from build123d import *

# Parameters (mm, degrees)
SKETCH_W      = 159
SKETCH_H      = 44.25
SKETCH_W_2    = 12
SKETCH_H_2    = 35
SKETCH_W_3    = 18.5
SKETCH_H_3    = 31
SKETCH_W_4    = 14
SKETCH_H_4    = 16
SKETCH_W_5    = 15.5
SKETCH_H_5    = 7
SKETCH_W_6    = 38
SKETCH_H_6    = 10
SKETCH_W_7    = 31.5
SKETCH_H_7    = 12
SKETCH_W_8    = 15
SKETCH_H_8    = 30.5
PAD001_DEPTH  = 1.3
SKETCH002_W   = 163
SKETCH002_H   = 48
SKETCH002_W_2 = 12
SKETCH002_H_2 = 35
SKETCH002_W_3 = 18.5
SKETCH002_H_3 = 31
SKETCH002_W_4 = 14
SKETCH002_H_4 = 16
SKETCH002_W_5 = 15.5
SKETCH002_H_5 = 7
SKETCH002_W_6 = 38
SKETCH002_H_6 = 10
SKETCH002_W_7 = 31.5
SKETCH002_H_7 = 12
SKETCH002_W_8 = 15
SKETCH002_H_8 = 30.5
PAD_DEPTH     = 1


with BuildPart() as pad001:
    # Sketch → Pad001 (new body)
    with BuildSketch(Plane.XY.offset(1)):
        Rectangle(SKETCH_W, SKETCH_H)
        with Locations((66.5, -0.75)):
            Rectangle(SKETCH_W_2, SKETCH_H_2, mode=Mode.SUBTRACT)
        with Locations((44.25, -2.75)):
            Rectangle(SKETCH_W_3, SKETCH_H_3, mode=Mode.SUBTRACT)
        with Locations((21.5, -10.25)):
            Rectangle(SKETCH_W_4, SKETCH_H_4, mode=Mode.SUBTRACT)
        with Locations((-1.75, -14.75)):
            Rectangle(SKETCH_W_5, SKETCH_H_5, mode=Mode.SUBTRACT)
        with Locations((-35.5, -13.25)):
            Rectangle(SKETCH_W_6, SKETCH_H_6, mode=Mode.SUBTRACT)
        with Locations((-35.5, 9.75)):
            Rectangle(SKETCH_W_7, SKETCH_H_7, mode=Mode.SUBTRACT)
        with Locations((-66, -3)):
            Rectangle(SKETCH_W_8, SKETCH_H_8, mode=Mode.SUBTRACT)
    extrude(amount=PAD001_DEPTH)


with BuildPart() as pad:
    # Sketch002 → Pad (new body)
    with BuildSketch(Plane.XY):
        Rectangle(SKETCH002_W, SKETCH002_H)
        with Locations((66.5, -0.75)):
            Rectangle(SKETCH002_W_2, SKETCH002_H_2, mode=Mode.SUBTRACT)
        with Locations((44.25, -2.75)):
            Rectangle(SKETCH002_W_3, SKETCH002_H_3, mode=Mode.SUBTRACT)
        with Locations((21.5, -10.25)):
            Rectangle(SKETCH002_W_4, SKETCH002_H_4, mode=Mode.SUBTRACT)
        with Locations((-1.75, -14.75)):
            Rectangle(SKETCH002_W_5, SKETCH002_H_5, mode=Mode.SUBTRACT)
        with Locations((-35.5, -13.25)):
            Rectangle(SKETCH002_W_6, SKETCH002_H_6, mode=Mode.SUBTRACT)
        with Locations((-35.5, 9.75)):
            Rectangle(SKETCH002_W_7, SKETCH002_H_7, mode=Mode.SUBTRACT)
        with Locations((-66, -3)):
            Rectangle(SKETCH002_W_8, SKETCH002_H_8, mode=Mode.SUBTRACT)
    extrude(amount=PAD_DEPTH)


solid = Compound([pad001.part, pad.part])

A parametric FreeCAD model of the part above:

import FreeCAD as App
import Part
import Sketcher

V = App.Vector

doc = App.newDocument("Part")
body = doc.addObject("PartDesign::Body", "Body")

# Sketch on XY plane
sketch1 = body.newObject("Sketcher::SketchObject", "Sketch")
sketch1.AttachmentSupport = (doc.getObject("XY_Plane"), [""])
sketch1.MapMode = "FlatFace"
sketch1.AttachmentOffset = App.Placement(V(0, 0, 1), App.Rotation())
sketch1.addGeometry([
    Part.LineSegment(V(-79.5, 22.125, 0), V(-79.5, -22.125, 0)),  # 0
    Part.LineSegment(V(-79.5, -22.125, 0), V(79.5, -22.125, 0)),  # 1
    Part.LineSegment(V(79.5, -22.125, 0), V(79.5, 22.125, 0)),  # 2
    Part.LineSegment(V(79.5, 22.125, 0), V(-79.5, 22.125, 0)),  # 3
    Part.LineSegment(V(6, -18.25, 0), V(-9.5, -18.25, 0)),  # 4
    Part.LineSegment(V(-9.5, -18.25, 0), V(-9.5, -11.25, 0)),  # 5
    Part.LineSegment(V(-9.5, -11.25, 0), V(6, -11.25, 0)),  # 6
    Part.LineSegment(V(6, -11.25, 0), V(6, -18.25, 0)),  # 7
    Part.LineSegment(V(-16.5, -18.25, 0), V(-54.5, -18.25, 0)),  # 8
    Part.LineSegment(V(-54.5, -18.25, 0), V(-54.5, -8.25, 0)),  # 9
    Part.LineSegment(V(-54.5, -8.25, 0), V(-16.5, -8.25, 0)),  # 10
    Part.LineSegment(V(-16.5, -8.25, 0), V(-16.5, -18.25, 0)),  # 11
    Part.LineSegment(V(-58.5, -18.25, 0), V(-73.5, -18.25, 0)),  # 12
    Part.LineSegment(V(-73.5, -18.25, 0), V(-73.5, 12.25, 0)),  # 13
    Part.LineSegment(V(-73.5, 12.25, 0), V(-58.5, 12.25, 0)),  # 14
    Part.LineSegment(V(-58.5, 12.25, 0), V(-58.5, -18.25, 0)),  # 15
    Part.LineSegment(V(28.5, -18.25, 0), V(14.5, -18.25, 0)),  # 16
    Part.LineSegment(V(14.5, -18.25, 0), V(14.5, -2.25, 0)),  # 17
    Part.LineSegment(V(14.5, -2.25, 0), V(28.5, -2.25, 0)),  # 18
    Part.LineSegment(V(28.5, -2.25, 0), V(28.5, -18.25, 0)),  # 19
    Part.LineSegment(V(53.5, -18.25, 0), V(35, -18.25, 0)),  # 20
    Part.LineSegment(V(35, -18.25, 0), V(35, 12.75, 0)),  # 21
    Part.LineSegment(V(35, 12.75, 0), V(53.5, 12.75, 0)),  # 22
    Part.LineSegment(V(53.5, 12.75, 0), V(53.5, -18.25, 0)),  # 23
    Part.LineSegment(V(-19.75, 3.75, 0), V(-51.25, 3.75, 0)),  # 24
    Part.LineSegment(V(-51.25, 3.75, 0), V(-51.25, 15.75, 0)),  # 25
    Part.LineSegment(V(-51.25, 15.75, 0), V(-19.75, 15.75, 0)),  # 26
    Part.LineSegment(V(-19.75, 15.75, 0), V(-19.75, 3.75, 0)),  # 27
    Part.LineSegment(V(72.5, -18.25, 0), V(60.5, -18.25, 0)),  # 28
    Part.LineSegment(V(60.5, -18.25, 0), V(60.5, 16.75, 0)),  # 29
    Part.LineSegment(V(60.5, 16.75, 0), V(72.5, 16.75, 0)),  # 30
    Part.LineSegment(V(72.5, 16.75, 0), V(72.5, -18.25, 0)),  # 31
], False)
sketch1.addConstraint([
    Sketcher.Constraint("Coincident", 0, 2, 1, 1),
    Sketcher.Constraint("Coincident", 1, 2, 2, 1),
    Sketcher.Constraint("Coincident", 2, 2, 3, 1),
    Sketcher.Constraint("Coincident", 3, 2, 0, 1),
    Sketcher.Constraint("Coincident", 4, 2, 5, 1),
    Sketcher.Constraint("Coincident", 5, 2, 6, 1),
    Sketcher.Constraint("Coincident", 6, 2, 7, 1),
    Sketcher.Constraint("Coincident", 7, 2, 4, 1),
    Sketcher.Constraint("Coincident", 8, 2, 9, 1),
    Sketcher.Constraint("Coincident", 9, 2, 10, 1),
    Sketcher.Constraint("Coincident", 10, 2, 11, 1),
    Sketcher.Constraint("Coincident", 11, 2, 8, 1),
    Sketcher.Constraint("Coincident", 12, 2, 13, 1),
    Sketcher.Constraint("Coincident", 13, 2, 14, 1),
    Sketcher.Constraint("Coincident", 14, 2, 15, 1),
    Sketcher.Constraint("Coincident", 15, 2, 12, 1),
    Sketcher.Constraint("Coincident", 16, 2, 17, 1),
    Sketcher.Constraint("Coincident", 17, 2, 18, 1),
    Sketcher.Constraint("Coincident", 18, 2, 19, 1),
    Sketcher.Constraint("Coincident", 19, 2, 16, 1),
    Sketcher.Constraint("Coincident", 20, 2, 21, 1),
    Sketcher.Constraint("Coincident", 21, 2, 22, 1),
    Sketcher.Constraint("Coincident", 22, 2, 23, 1),
    Sketcher.Constraint("Coincident", 23, 2, 20, 1),
    Sketcher.Constraint("Coincident", 24, 2, 25, 1),
    Sketcher.Constraint("Coincident", 25, 2, 26, 1),
    Sketcher.Constraint("Coincident", 26, 2, 27, 1),
    Sketcher.Constraint("Coincident", 27, 2, 24, 1),
    Sketcher.Constraint("Coincident", 28, 2, 29, 1),
    Sketcher.Constraint("Coincident", 29, 2, 30, 1),
    Sketcher.Constraint("Coincident", 30, 2, 31, 1),
    Sketcher.Constraint("Coincident", 31, 2, 28, 1),
    Sketcher.Constraint("Vertical", 0),
    Sketcher.Constraint("Horizontal", 1),
    Sketcher.Constraint("Vertical", 2),
    Sketcher.Constraint("Horizontal", 3),
    Sketcher.Constraint("Horizontal", 4),
    Sketcher.Constraint("Vertical", 5),
    Sketcher.Constraint("Horizontal", 6),
    Sketcher.Constraint("Vertical", 7),
    Sketcher.Constraint("Horizontal", 8),
    Sketcher.Constraint("Vertical", 9),
    Sketcher.Constraint("Horizontal", 10),
    Sketcher.Constraint("Vertical", 11),
    Sketcher.Constraint("Horizontal", 12),
    Sketcher.Constraint("Vertical", 13),
    Sketcher.Constraint("Horizontal", 14),
    Sketcher.Constraint("Vertical", 15),
    Sketcher.Constraint("Horizontal", 16),
    Sketcher.Constraint("Vertical", 17),
    Sketcher.Constraint("Horizontal", 18),
    Sketcher.Constraint("Vertical", 19),
    Sketcher.Constraint("Horizontal", 20),
    Sketcher.Constraint("Vertical", 21),
    Sketcher.Constraint("Horizontal", 22),
    Sketcher.Constraint("Vertical", 23),
    Sketcher.Constraint("Horizontal", 24),
    Sketcher.Constraint("Vertical", 25),
    Sketcher.Constraint("Horizontal", 26),
    Sketcher.Constraint("Vertical", 27),
    Sketcher.Constraint("Horizontal", 28),
    Sketcher.Constraint("Vertical", 29),
    Sketcher.Constraint("Horizontal", 30),
    Sketcher.Constraint("Vertical", 31),
    Sketcher.Constraint("Symmetric", 0, 2, 2, 2, -1, 1),
    Sketcher.Constraint("Horizontal", 7, 2, 8, 2),
    Sketcher.Constraint("Horizontal", 11, 2, 12, 2),
    Sketcher.Constraint("Horizontal", 15, 2, 16, 2),
    Sketcher.Constraint("Horizontal", 19, 2, 20, 2),
    Sketcher.Constraint("Horizontal", 23, 2, 28, 2),
    Sketcher.Constraint("Equal", 30, 25),
    Sketcher.Constraint("DistanceX", 1, 1, 1, 2, 159.0),
    Sketcher.Constraint("DistanceX", 8, 2, 8, 1, 38.0),
    Sketcher.Constraint("DistanceX", 12, 2, 12, 1, 15.0),
    Sketcher.Constraint("DistanceX", 16, 2, 16, 1, 14.0),
    Sketcher.Constraint("DistanceX", 28, 2, 28, 1, 12.0),
    Sketcher.Constraint("DistanceY", 5, 1, 5, 2, 7.0),
    Sketcher.Constraint("DistanceY", 9, 1, 9, 2, 10.0),
    Sketcher.Constraint("DistanceY", 17, 1, 17, 2, 16.0),
    Sketcher.Constraint("DistanceY", 21, 1, 21, 2, 31.0),
    Sketcher.Constraint("DistanceY", 29, 1, 29, 2, 35.0),
    Sketcher.Constraint("DistanceX", 4, 2, 4, 1, 15.5),
    Sketcher.Constraint("DistanceX", 20, 2, 20, 1, 18.5),
    Sketcher.Constraint("DistanceX", 24, 2, 24, 1, 31.5),
    Sketcher.Constraint("DistanceY", 13, 1, 13, 2, 30.5),
    Sketcher.Constraint("DistanceX", -1, 1, 6, 2, 6.0),
    Sketcher.Constraint("DistanceX", -1, 1, 20, 2, 35.0),
    Sketcher.Constraint("DistanceX", 0, 2, 8, 2, 25.0),
    Sketcher.Constraint("DistanceX", 0, 2, 12, 2, 6.0),
    Sketcher.Constraint("DistanceX", 4, 2, 16, 2, 24.0),
    Sketcher.Constraint("DistanceY", 9, 2, 24, 2, 12.0),
    Sketcher.Constraint("DistanceX", 23, 2, 28, 2, 7.0),
    Sketcher.Constraint("DistanceY", 0, 2, 0, 1, 44.25),
    Sketcher.Constraint("DistanceY", 4, 2, -1, 1, 18.25),
    Sketcher.Constraint("DistanceX", 24, 2, -1, 1, 51.25),
])
pad1 = body.newObject("PartDesign::Pad", "Pad")
pad1.Profile = sketch1
pad1.Length = 1.3
body2 = doc.addObject("PartDesign::Body", "Body001")

# Sketch on XY plane
sketch2 = body2.newObject("Sketcher::SketchObject", "Sketch001")
sketch2.AttachmentSupport = (doc.getObject("XY_Plane001"), [""])
sketch2.MapMode = "FlatFace"
sketch2.addGeometry([
    Part.LineSegment(V(-81.5, 24, 0), V(-81.5, -24, 0)),  # 0
    Part.LineSegment(V(-81.5, -24, 0), V(81.5, -24, 0)),  # 1
    Part.LineSegment(V(81.5, -24, 0), V(81.5, 24, 0)),  # 2
    Part.LineSegment(V(81.5, 24, 0), V(-81.5, 24, 0)),  # 3
    Part.LineSegment(V(6, -18.25, 0), V(-9.5, -18.25, 0)),  # 4
    Part.LineSegment(V(-9.5, -18.25, 0), V(-9.5, -11.25, 0)),  # 5
    Part.LineSegment(V(-9.5, -11.25, 0), V(6, -11.25, 0)),  # 6
    Part.LineSegment(V(6, -11.25, 0), V(6, -18.25, 0)),  # 7
    Part.LineSegment(V(-16.5, -18.25, 0), V(-54.5, -18.25, 0)),  # 8
    Part.LineSegment(V(-54.5, -18.25, 0), V(-54.5, -8.25, 0)),  # 9
    Part.LineSegment(V(-54.5, -8.25, 0), V(-16.5, -8.25, 0)),  # 10
    Part.LineSegment(V(-16.5, -8.25, 0), V(-16.5, -18.25, 0)),  # 11
    Part.LineSegment(V(-58.5, -18.25, 0), V(-73.5, -18.25, 0)),  # 12
    Part.LineSegment(V(-73.5, -18.25, 0), V(-73.5, 12.25, 0)),  # 13
    Part.LineSegment(V(-73.5, 12.25, 0), V(-58.5, 12.25, 0)),  # 14
    Part.LineSegment(V(-58.5, 12.25, 0), V(-58.5, -18.25, 0)),  # 15
    Part.LineSegment(V(28.5, -18.25, 0), V(14.5, -18.25, 0)),  # 16
    Part.LineSegment(V(14.5, -18.25, 0), V(14.5, -2.25, 0)),  # 17
    Part.LineSegment(V(14.5, -2.25, 0), V(28.5, -2.25, 0)),  # 18
    Part.LineSegment(V(28.5, -2.25, 0), V(28.5, -18.25, 0)),  # 19
    Part.LineSegment(V(53.5, -18.25, 0), V(35, -18.25, 0)),  # 20
    Part.LineSegment(V(35, -18.25, 0), V(35, 12.75, 0)),  # 21
    Part.LineSegment(V(35, 12.75, 0), V(53.5, 12.75, 0)),  # 22
    Part.LineSegment(V(53.5, 12.75, 0), V(53.5, -18.25, 0)),  # 23
    Part.LineSegment(V(-19.75, 3.75, 0), V(-51.25, 3.75, 0)),  # 24
    Part.LineSegment(V(-51.25, 3.75, 0), V(-51.25, 15.75, 0)),  # 25
    Part.LineSegment(V(-51.25, 15.75, 0), V(-19.75, 15.75, 0)),  # 26
    Part.LineSegment(V(-19.75, 15.75, 0), V(-19.75, 3.75, 0)),  # 27
    Part.LineSegment(V(72.5, -18.25, 0), V(60.5, -18.25, 0)),  # 28
    Part.LineSegment(V(60.5, -18.25, 0), V(60.5, 16.75, 0)),  # 29
    Part.LineSegment(V(60.5, 16.75, 0), V(72.5, 16.75, 0)),  # 30
    Part.LineSegment(V(72.5, 16.75, 0), V(72.5, -18.25, 0)),  # 31
], False)
sketch2.addConstraint([
    Sketcher.Constraint("Coincident", 0, 2, 1, 1),
    Sketcher.Constraint("Coincident", 1, 2, 2, 1),
    Sketcher.Constraint("Coincident", 2, 2, 3, 1),
    Sketcher.Constraint("Coincident", 3, 2, 0, 1),
    Sketcher.Constraint("Coincident", 4, 2, 5, 1),
    Sketcher.Constraint("Coincident", 5, 2, 6, 1),
    Sketcher.Constraint("Coincident", 6, 2, 7, 1),
    Sketcher.Constraint("Coincident", 7, 2, 4, 1),
    Sketcher.Constraint("Coincident", 8, 2, 9, 1),
    Sketcher.Constraint("Coincident", 9, 2, 10, 1),
    Sketcher.Constraint("Coincident", 10, 2, 11, 1),
    Sketcher.Constraint("Coincident", 11, 2, 8, 1),
    Sketcher.Constraint("Coincident", 12, 2, 13, 1),
    Sketcher.Constraint("Coincident", 13, 2, 14, 1),
    Sketcher.Constraint("Coincident", 14, 2, 15, 1),
    Sketcher.Constraint("Coincident", 15, 2, 12, 1),
    Sketcher.Constraint("Coincident", 16, 2, 17, 1),
    Sketcher.Constraint("Coincident", 17, 2, 18, 1),
    Sketcher.Constraint("Coincident", 18, 2, 19, 1),
    Sketcher.Constraint("Coincident", 19, 2, 16, 1),
    Sketcher.Constraint("Coincident", 20, 2, 21, 1),
    Sketcher.Constraint("Coincident", 21, 2, 22, 1),
    Sketcher.Constraint("Coincident", 22, 2, 23, 1),
    Sketcher.Constraint("Coincident", 23, 2, 20, 1),
    Sketcher.Constraint("Coincident", 24, 2, 25, 1),
    Sketcher.Constraint("Coincident", 25, 2, 26, 1),
    Sketcher.Constraint("Coincident", 26, 2, 27, 1),
    Sketcher.Constraint("Coincident", 27, 2, 24, 1),
    Sketcher.Constraint("Coincident", 28, 2, 29, 1),
    Sketcher.Constraint("Coincident", 29, 2, 30, 1),
    Sketcher.Constraint("Coincident", 30, 2, 31, 1),
    Sketcher.Constraint("Coincident", 31, 2, 28, 1),
    Sketcher.Constraint("Vertical", 0),
    Sketcher.Constraint("Horizontal", 1),
    Sketcher.Constraint("Vertical", 2),
    Sketcher.Constraint("Horizontal", 3),
    Sketcher.Constraint("Horizontal", 4),
    Sketcher.Constraint("Vertical", 5),
    Sketcher.Constraint("Horizontal", 6),
    Sketcher.Constraint("Vertical", 7),
    Sketcher.Constraint("Horizontal", 8),
    Sketcher.Constraint("Vertical", 9),
    Sketcher.Constraint("Horizontal", 10),
    Sketcher.Constraint("Vertical", 11),
    Sketcher.Constraint("Horizontal", 12),
    Sketcher.Constraint("Vertical", 13),
    Sketcher.Constraint("Horizontal", 14),
    Sketcher.Constraint("Vertical", 15),
    Sketcher.Constraint("Horizontal", 16),
    Sketcher.Constraint("Vertical", 17),
    Sketcher.Constraint("Horizontal", 18),
    Sketcher.Constraint("Vertical", 19),
    Sketcher.Constraint("Horizontal", 20),
    Sketcher.Constraint("Vertical", 21),
    Sketcher.Constraint("Horizontal", 22),
    Sketcher.Constraint("Vertical", 23),
    Sketcher.Constraint("Horizontal", 24),
    Sketcher.Constraint("Vertical", 25),
    Sketcher.Constraint("Horizontal", 26),
    Sketcher.Constraint("Vertical", 27),
    Sketcher.Constraint("Horizontal", 28),
    Sketcher.Constraint("Vertical", 29),
    Sketcher.Constraint("Horizontal", 30),
    Sketcher.Constraint("Vertical", 31),
    Sketcher.Constraint("Symmetric", 0, 2, 2, 2, -1, 1),
    Sketcher.Constraint("Horizontal", 7, 2, 8, 2),
    Sketcher.Constraint("Horizontal", 11, 2, 12, 2),
    Sketcher.Constraint("Horizontal", 15, 2, 16, 2),
    Sketcher.Constraint("Horizontal", 19, 2, 20, 2),
    Sketcher.Constraint("Horizontal", 23, 2, 28, 2),
    Sketcher.Constraint("Equal", 30, 25),
    Sketcher.Constraint("DistanceX", 1, 1, 1, 2, 163.0),
    Sketcher.Constraint("DistanceX", 8, 2, 8, 1, 38.0),
    Sketcher.Constraint("DistanceX", 12, 2, 12, 1, 15.0),
    Sketcher.Constraint("DistanceX", 16, 2, 16, 1, 14.0),
    Sketcher.Constraint("DistanceX", 28, 2, 28, 1, 12.0),
    Sketcher.Constraint("DistanceY", 0, 2, 0, 1, 48.0),
    Sketcher.Constraint("DistanceY", 5, 1, 5, 2, 7.0),
    Sketcher.Constraint("DistanceY", 9, 1, 9, 2, 10.0),
    Sketcher.Constraint("DistanceY", 17, 1, 17, 2, 16.0),
    Sketcher.Constraint("DistanceY", 21, 1, 21, 2, 31.0),
    Sketcher.Constraint("DistanceY", 29, 1, 29, 2, 35.0),
    Sketcher.Constraint("DistanceX", 4, 2, 4, 1, 15.5),
    Sketcher.Constraint("DistanceX", 20, 2, 20, 1, 18.5),
    Sketcher.Constraint("DistanceX", 24, 2, 24, 1, 31.5),
    Sketcher.Constraint("DistanceY", 13, 1, 13, 2, 30.5),
    Sketcher.Constraint("DistanceX", -1, 1, 6, 2, 6.0),
    Sketcher.Constraint("DistanceX", -1, 1, 20, 2, 35.0),
    Sketcher.Constraint("DistanceX", 0, 2, 8, 2, 27.0),
    Sketcher.Constraint("DistanceX", 0, 2, 12, 2, 8.0),
    Sketcher.Constraint("DistanceX", 4, 2, 16, 2, 24.0),
    Sketcher.Constraint("DistanceY", 9, 2, 24, 2, 12.0),
    Sketcher.Constraint("DistanceX", 23, 2, 28, 2, 7.0),
    Sketcher.Constraint("DistanceY", 4, 2, -1, 1, 18.25),
    Sketcher.Constraint("DistanceX", 24, 2, -1, 1, 51.25),
])
pad2 = body2.newObject("PartDesign::Pad", "Pad001")
pad2.Profile = sketch2
pad2.Length = 1

doc.recompute()
